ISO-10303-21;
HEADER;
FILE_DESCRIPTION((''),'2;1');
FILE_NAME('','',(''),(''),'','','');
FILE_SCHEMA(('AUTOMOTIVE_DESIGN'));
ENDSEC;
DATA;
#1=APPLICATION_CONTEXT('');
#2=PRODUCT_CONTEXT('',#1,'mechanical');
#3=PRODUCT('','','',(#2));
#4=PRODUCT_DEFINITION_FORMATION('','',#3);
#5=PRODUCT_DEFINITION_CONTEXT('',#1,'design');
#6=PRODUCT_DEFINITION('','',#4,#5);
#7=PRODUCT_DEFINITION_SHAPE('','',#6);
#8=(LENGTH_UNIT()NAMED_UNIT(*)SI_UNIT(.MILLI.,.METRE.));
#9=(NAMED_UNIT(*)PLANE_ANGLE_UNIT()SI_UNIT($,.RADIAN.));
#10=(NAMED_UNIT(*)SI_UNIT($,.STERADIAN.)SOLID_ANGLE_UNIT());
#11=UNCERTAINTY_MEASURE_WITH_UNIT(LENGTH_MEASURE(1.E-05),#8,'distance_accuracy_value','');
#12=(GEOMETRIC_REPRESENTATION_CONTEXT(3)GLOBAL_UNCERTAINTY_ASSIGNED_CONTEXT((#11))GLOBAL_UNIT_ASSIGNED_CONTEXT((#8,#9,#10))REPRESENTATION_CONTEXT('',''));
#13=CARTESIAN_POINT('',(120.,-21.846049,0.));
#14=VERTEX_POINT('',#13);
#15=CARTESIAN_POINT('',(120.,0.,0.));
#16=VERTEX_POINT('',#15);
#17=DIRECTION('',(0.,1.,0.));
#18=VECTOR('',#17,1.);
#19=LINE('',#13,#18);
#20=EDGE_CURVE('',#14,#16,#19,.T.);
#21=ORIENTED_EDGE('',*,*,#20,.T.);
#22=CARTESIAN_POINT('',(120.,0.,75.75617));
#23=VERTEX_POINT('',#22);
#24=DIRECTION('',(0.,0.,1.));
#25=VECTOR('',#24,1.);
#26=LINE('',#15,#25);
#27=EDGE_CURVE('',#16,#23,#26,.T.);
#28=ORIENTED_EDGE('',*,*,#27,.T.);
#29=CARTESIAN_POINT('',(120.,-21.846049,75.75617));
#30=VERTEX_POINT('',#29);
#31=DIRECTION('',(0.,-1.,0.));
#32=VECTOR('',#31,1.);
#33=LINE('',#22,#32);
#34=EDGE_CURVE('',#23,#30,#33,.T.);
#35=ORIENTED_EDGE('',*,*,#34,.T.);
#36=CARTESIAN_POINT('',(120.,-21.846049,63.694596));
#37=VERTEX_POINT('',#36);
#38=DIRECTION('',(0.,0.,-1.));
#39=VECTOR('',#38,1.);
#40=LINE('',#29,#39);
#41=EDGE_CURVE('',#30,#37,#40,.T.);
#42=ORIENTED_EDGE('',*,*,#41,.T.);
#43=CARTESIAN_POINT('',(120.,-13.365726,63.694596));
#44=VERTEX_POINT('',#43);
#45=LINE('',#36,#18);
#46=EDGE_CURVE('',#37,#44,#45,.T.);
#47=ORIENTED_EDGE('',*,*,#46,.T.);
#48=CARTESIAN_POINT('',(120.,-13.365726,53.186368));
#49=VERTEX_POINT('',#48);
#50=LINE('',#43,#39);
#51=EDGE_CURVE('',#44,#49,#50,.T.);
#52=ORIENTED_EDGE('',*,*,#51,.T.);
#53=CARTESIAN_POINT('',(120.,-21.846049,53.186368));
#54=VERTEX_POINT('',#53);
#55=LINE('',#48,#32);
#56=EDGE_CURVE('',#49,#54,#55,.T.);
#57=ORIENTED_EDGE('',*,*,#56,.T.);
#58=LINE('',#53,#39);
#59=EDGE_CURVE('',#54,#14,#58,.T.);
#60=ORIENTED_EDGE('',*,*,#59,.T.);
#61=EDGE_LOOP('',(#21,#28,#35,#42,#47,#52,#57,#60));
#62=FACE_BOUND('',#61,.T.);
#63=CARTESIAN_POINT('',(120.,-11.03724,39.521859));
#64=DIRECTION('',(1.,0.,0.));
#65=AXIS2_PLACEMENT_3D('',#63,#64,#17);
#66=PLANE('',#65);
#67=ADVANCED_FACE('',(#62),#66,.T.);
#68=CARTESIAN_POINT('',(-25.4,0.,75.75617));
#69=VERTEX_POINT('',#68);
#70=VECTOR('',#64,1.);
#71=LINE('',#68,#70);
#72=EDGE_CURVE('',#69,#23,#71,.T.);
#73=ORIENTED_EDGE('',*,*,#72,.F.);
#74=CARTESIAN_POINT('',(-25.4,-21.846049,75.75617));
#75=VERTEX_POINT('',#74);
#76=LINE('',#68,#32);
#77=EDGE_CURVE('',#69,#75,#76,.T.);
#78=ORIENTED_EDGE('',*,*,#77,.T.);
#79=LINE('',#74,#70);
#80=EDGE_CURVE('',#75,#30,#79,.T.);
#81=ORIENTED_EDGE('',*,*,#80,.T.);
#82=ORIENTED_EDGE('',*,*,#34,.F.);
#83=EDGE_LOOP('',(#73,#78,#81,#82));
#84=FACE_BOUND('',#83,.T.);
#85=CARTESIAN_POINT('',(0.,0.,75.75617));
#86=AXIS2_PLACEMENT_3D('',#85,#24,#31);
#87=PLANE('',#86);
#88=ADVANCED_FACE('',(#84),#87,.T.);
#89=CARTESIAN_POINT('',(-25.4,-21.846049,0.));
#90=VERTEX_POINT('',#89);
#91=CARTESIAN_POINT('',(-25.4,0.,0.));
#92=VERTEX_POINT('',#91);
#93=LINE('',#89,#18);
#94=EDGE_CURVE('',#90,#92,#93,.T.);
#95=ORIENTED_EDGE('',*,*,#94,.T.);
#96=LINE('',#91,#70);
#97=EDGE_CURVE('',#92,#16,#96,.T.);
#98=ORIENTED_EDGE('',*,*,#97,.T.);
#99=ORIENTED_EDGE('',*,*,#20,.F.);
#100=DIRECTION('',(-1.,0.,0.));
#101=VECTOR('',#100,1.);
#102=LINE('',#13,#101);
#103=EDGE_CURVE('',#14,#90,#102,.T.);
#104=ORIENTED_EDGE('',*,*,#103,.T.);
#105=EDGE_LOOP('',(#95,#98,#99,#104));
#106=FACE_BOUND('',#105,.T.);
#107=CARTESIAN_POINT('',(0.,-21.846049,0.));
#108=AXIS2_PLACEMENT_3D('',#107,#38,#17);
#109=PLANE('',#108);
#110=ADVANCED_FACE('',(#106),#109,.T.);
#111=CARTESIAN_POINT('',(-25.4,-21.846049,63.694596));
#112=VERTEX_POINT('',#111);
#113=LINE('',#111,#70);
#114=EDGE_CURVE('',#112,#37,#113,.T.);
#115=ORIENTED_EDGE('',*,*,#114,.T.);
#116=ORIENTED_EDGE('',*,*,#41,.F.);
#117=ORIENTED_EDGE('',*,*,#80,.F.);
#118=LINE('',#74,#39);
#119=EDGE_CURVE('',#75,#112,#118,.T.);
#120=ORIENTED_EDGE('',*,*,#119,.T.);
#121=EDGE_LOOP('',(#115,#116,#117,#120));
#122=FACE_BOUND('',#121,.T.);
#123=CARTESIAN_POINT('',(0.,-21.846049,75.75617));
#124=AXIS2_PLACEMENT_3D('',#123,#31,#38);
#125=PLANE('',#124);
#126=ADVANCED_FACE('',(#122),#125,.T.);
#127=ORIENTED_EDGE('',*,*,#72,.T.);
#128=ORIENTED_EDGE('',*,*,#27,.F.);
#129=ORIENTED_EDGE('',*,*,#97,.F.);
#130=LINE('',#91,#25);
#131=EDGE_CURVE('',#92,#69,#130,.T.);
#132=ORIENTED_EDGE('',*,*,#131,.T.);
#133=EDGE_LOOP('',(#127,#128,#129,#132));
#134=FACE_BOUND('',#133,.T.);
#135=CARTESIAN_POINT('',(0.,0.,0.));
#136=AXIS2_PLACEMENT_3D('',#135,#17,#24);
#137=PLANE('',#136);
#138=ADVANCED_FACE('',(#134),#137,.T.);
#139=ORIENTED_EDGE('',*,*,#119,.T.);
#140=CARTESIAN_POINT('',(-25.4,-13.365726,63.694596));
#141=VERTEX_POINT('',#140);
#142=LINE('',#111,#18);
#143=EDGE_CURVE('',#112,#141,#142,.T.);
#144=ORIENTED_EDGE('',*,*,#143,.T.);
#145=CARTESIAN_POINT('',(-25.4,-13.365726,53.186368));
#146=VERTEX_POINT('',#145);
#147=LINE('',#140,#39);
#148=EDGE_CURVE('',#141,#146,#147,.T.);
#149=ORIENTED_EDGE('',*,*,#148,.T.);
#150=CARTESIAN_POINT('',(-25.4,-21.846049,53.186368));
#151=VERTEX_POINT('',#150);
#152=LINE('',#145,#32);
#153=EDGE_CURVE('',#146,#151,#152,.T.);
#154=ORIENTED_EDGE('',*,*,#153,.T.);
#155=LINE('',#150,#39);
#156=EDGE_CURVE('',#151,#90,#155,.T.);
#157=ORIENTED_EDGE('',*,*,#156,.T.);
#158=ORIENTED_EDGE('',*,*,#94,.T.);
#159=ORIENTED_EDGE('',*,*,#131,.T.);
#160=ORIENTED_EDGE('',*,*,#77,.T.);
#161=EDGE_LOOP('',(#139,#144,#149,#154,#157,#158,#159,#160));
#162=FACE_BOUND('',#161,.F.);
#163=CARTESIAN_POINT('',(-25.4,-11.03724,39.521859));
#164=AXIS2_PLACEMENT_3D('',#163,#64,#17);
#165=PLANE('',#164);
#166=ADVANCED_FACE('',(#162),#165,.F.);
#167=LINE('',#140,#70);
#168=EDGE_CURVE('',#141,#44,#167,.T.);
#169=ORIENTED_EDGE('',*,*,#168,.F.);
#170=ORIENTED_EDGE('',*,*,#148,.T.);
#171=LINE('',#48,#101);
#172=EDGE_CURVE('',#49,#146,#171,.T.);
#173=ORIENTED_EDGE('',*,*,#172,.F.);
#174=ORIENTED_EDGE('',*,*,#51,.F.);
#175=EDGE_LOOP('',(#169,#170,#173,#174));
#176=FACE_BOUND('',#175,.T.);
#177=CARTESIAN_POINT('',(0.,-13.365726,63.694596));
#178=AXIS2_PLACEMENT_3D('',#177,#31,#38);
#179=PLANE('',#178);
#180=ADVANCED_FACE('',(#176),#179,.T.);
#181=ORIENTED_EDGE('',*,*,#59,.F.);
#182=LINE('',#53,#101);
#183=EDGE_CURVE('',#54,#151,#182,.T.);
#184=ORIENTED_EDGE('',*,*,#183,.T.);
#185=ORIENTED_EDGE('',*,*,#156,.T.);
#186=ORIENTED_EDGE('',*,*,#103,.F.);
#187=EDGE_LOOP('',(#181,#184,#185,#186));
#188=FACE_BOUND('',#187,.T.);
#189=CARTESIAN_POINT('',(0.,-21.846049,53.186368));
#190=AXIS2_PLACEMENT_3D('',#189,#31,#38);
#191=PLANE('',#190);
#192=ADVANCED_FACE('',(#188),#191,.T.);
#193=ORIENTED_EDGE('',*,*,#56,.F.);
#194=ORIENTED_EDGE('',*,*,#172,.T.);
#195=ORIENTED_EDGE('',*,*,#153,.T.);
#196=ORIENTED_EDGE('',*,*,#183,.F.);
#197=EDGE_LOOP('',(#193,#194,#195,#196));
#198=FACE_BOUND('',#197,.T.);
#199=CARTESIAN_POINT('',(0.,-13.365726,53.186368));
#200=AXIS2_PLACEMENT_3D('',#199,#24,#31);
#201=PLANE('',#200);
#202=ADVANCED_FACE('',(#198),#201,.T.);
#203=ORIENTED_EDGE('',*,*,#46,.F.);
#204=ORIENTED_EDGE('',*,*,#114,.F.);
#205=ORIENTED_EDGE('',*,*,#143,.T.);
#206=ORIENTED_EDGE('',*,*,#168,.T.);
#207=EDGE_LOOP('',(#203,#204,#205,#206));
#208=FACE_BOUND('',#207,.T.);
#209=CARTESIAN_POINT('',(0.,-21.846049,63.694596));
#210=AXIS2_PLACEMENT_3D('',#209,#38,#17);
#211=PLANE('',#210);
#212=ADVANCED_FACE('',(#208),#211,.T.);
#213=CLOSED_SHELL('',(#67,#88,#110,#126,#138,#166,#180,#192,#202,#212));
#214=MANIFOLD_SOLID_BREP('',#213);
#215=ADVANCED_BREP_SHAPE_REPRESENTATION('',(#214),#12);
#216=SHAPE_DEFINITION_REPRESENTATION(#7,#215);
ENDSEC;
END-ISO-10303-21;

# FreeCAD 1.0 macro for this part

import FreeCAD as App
import Part
import Sketcher

V = App.Vector
Q = App.Units.Quantity

doc = App.newDocument("Part")
body = doc.addObject("PartDesign::Body", "Body")

# Sketch on YZ plane
sketch1 = body.newObject("Sketcher::SketchObject", "Sketch")
sketch1.AttachmentSupport = (doc.getObject("YZ_Plane"), [""])
sketch1.MapMode = "FlatFace"
sketch1.addGeometry(Part.LineSegment(V(-22, 0, 0), V(0, 0, 0)), False)
sketch1.addGeometry(Part.LineSegment(V(0, 0, 0), V(0, 76, 0)), False)
sketch1.addGeometry(Part.LineSegment(V(0, 76, 0), V(-22, 76, 0)), False)
sketch1.addGeometry(Part.LineSegment(V(-22, 76, 0), V(-22, 64, 0)), False)
sketch1.addGeometry(Part.LineSegment(V(-22, 64, 0), V(-13, 64, 0)), False)
sketch1.addGeometry(Part.LineSegment(V(-13, 64, 0), V(-13, 53, 0)), False)
sketch1.addGeometry(Part.LineSegment(V(-13, 53, 0), V(-22, 53, 0)), False)
sketch1.addGeometry(Part.LineSegment(V(-22, 53, 0), V(-22, 0, 0)), False)
sketch1.addConstraint(Sketcher.Constraint("Coincident", 0, 2, 1, 1))
sketch1.addConstraint(Sketcher.Constraint("Coincident", 1, 2, 2, 1))
sketch1.addConstraint(Sketcher.Constraint("Coincident", 2, 2, 3, 1))
sketch1.addConstraint(Sketcher.Constraint("Coincident", 3, 2, 4, 1))
sketch1.addConstraint(Sketcher.Constraint("Coincident", 4, 2, 5, 1))
sketch1.addConstraint(Sketcher.Constraint("Coincident", 5, 2, 6, 1))
sketch1.addConstraint(Sketcher.Constraint("Coincident", 6, 2, 7, 1))
sketch1.addConstraint(Sketcher.Constraint("Coincident", 7, 2, 0, 1))
sketch1.addConstraint(Sketcher.Constraint("Horizontal", 0))
sketch1.addConstraint(Sketcher.Constraint("Vertical", 1))
sketch1.addConstraint(Sketcher.Constraint("Horizontal", 2))
sketch1.addConstraint(Sketcher.Constraint("Vertical", 3))
sketch1.addConstraint(Sketcher.Constraint("Horizontal", 4))
sketch1.addConstraint(Sketcher.Constraint("Vertical", 5))
sketch1.addConstraint(Sketcher.Constraint("Horizontal", 6))
sketch1.addConstraint(Sketcher.Constraint("Vertical", 7))
sketch1.addConstraint(Sketcher.Constraint("Coincident", 0, 2, -1, 1))
sketch1.addConstraint(Sketcher.Constraint("Vertical", 3, 2, 6, 2))
sketch1.addConstraint(Sketcher.Constraint("DistanceX", 0, 1, 0, 2, Q("21.846049 mm")))
sketch1.addConstraint(Sketcher.Constraint("DistanceY", 1, 1, 1, 2, Q("75.75617 mm")))
sketch1.addConstraint(Sketcher.Constraint("DistanceY", 7, 2, 7, 1, Q("53.186368 mm")))
sketch1.addConstraint(Sketcher.Constraint("DistanceX", 4, 1, 4, 2, Q("8.480323 mm")))
sketch1.addConstraint(Sketcher.Constraint("DistanceY", 3, 2, 3, 1, Q("12.061574 mm")))
pad1 = body.newObject("PartDesign::Pad", "Pad")
pad1.Profile = sketch1
pad1.Type = "TwoLengths"
pad1.Length = 120
pad1.Length2 = 25.4

doc.recompute()
